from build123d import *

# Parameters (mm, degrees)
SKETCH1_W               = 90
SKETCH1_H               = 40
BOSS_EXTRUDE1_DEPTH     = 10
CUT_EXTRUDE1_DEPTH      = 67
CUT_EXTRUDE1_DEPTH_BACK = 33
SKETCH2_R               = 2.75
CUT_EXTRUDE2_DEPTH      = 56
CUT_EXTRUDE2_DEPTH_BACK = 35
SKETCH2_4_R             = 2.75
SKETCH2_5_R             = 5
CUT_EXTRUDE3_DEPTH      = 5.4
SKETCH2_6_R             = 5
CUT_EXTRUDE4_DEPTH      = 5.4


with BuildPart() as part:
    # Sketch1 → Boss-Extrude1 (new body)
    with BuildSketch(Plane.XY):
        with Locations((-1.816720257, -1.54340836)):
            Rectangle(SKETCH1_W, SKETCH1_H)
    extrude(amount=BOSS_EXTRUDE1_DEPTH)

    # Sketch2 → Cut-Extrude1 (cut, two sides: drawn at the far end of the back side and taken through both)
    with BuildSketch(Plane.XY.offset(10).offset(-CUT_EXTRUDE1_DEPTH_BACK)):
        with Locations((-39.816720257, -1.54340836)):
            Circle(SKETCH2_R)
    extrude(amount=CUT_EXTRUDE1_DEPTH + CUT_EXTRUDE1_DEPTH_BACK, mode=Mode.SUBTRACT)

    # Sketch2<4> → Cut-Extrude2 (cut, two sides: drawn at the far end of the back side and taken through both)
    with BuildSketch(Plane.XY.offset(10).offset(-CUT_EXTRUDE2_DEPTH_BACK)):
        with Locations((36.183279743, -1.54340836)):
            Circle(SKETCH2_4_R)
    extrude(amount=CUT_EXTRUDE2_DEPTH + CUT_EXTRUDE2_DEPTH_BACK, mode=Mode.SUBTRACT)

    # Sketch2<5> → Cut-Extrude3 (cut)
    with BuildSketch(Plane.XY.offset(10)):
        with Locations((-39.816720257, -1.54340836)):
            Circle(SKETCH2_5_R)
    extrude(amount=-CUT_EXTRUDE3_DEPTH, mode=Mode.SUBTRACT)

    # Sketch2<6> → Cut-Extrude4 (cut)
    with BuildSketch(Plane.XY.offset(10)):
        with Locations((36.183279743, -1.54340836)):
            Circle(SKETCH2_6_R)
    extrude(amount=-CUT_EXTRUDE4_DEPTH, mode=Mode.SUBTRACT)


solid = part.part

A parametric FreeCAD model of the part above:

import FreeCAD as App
import Part
import Sketcher

V = App.Vector

doc = App.newDocument("Part")
body = doc.addObject("PartDesign::Body", "Body")

# Sketch on XY plane
sketch1 = doc.addObject("Sketcher::SketchObject", "Sketch")
body.addObject(sketch1)
sketch1.AttachmentSupport = (doc.XY_Plane, [""])
sketch1.MapMode = "FlatFace"
sketch1.addGeometry(Part.LineSegment(V(-47, 18, 0), V(-47, -22, 0)), False)
sketch1.addGeometry(Part.LineSegment(V(-47, -22, 0), V(43, -22, 0)), False)
sketch1.addGeometry(Part.LineSegment(V(43, -22, 0), V(43, 18, 0)), False)
sketch1.addGeometry(Part.LineSegment(V(43, 18, 0), V(-47, 18, 0)), False)
sketch1.addConstraint(Sketcher.Constraint("Coincident", 0, 2, 1, 1))
sketch1.addConstraint(Sketcher.Constraint("Coincident", 1, 2, 2, 1))
sketch1.addConstraint(Sketcher.Constraint("Coincident", 2, 2, 3, 1))
sketch1.addConstraint(Sketcher.Constraint("Coincident", 3, 2, 0, 1))
sketch1.addConstraint(Sketcher.Constraint("Vertical", 0))
sketch1.addConstraint(Sketcher.Constraint("Horizontal", 1))
sketch1.addConstraint(Sketcher.Constraint("Vertical", 2))
sketch1.addConstraint(Sketcher.Constraint("Horizontal", 3))
sketch1.addConstraint(Sketcher.Constraint("DistanceX", 1, 1, 1, 2, 90.0))
sketch1.addConstraint(Sketcher.Constraint("DistanceY", 0, 2, 0, 1, 40.0))
sketch1.addConstraint(Sketcher.Constraint("DistanceX", 0, 2, -1, 1, 46.81672))
sketch1.addConstraint(Sketcher.Constraint("DistanceY", 0, 2, -1, 1, 21.543408))
pad1 = doc.addObject("PartDesign::Pad", "Pad")
body.addObject(pad1)
pad1.Profile = sketch1
pad1.Length = 10

# Sketch on XY plane
sketch2 = doc.addObject("Sketcher::SketchObject", "Sketch001")
body.addObject(sketch2)
sketch2.AttachmentSupport = (doc.XY_Plane, [""])
sketch2.MapMode = "FlatFace"
sketch2.AttachmentOffset = App.Placement(V(0, 0, 10), App.Rotation())
sketch2.addGeometry(Part.Circle(V(-39.8, -1.5, 0), V(0, 0, 1), 2.8), False)
sketch2.addConstraint(Sketcher.Constraint("Diameter", 0, 5.5))
sketch2.addConstraint(Sketcher.Constraint("DistanceX", 0, 3, -1, 1, 39.81672))
sketch2.addConstraint(Sketcher.Constraint("DistanceY", 0, 3, -1, 1, 1.543408))
pocket1 = doc.addObject("PartDesign::Pocket", "Pocket")
body.addObject(pocket1)
pocket1.Profile = sketch2
pocket1.Type = "ThroughAll"
pocket1.Midplane = True

# Sketch on XY plane
sketch3 = doc.addObject("Sketcher::SketchObject", "Sketch002")
body.addObject(sketch3)
sketch3.AttachmentSupport = (doc.XY_Plane, [""])
sketch3.MapMode = "FlatFace"
sketch3.AttachmentOffset = App.Placement(V(0, 0, 10), App.Rotation())
sketch3.addGeometry(Part.Circle(V(36.2, -1.5, 0), V(0, 0, 1), 2.8), False)
sketch3.addConstraint(Sketcher.Constraint("Diameter", 0, 5.5))
sketch3.addConstraint(Sketcher.Constraint("DistanceX", -1, 1, 0, 3, 36.18328))
sketch3.addConstraint(Sketcher.Constraint("DistanceY", 0, 3, -1, 1, 1.543408))
pocket2 = doc.addObject("PartDesign::Pocket", "Pocket001")
body.addObject(pocket2)
pocket2.Profile = sketch3
pocket2.Type = "ThroughAll"
pocket2.Midplane = True

# Sketch on XY plane
sketch4 = doc.addObject("Sketcher::SketchObject", "Sketch003")
body.addObject(sketch4)
sketch4.AttachmentSupport = (doc.XY_Plane, [""])
sketch4.MapMode = "FlatFace"
sketch4.AttachmentOffset = App.Placement(V(0, 0, 10), App.Rotation())
sketch4.addGeometry(Part.Circle(V(-40, -2, 0), V(0, 0, 1), 5), False)
sketch4.addConstraint(Sketcher.Constraint("Diameter", 0, 10.0))
sketch4.addConstraint(Sketcher.Constraint("DistanceX", 0, 3, -1, 1, 39.81672))
sketch4.addConstraint(Sketcher.Constraint("DistanceY", 0, 3, -1, 1, 1.543408))
pocket3 = doc.addObject("PartDesign::Pocket", "Pocket002")
body.addObject(pocket3)
pocket3.Profile = sketch4
pocket3.Length = 5.4

# Sketch on XY plane
sketch5 = doc.addObject("Sketcher::SketchObject", "Sketch004")
body.addObject(sketch5)
sketch5.AttachmentSupport = (doc.XY_Plane, [""])
sketch5.MapMode = "FlatFace"
sketch5.AttachmentOffset = App.Placement(V(0, 0, 10), App.Rotation())
sketch5.addGeometry(Part.Circle(V(36, -2, 0), V(0, 0, 1), 5), False)
sketch5.addConstraint(Sketcher.Constraint("Diameter", 0, 10.0))
sketch5.addConstraint(Sketcher.Constraint("DistanceX", -1, 1, 0, 3, 36.18328))
sketch5.addConstraint(Sketcher.Constraint("DistanceY", 0, 3, -1, 1, 1.543408))
pocket4 = doc.addObject("PartDesign::Pocket", "Pocket003")
body.addObject(pocket4)
pocket4.Profile = sketch5
pocket4.Length = 5.4

doc.recompute()
